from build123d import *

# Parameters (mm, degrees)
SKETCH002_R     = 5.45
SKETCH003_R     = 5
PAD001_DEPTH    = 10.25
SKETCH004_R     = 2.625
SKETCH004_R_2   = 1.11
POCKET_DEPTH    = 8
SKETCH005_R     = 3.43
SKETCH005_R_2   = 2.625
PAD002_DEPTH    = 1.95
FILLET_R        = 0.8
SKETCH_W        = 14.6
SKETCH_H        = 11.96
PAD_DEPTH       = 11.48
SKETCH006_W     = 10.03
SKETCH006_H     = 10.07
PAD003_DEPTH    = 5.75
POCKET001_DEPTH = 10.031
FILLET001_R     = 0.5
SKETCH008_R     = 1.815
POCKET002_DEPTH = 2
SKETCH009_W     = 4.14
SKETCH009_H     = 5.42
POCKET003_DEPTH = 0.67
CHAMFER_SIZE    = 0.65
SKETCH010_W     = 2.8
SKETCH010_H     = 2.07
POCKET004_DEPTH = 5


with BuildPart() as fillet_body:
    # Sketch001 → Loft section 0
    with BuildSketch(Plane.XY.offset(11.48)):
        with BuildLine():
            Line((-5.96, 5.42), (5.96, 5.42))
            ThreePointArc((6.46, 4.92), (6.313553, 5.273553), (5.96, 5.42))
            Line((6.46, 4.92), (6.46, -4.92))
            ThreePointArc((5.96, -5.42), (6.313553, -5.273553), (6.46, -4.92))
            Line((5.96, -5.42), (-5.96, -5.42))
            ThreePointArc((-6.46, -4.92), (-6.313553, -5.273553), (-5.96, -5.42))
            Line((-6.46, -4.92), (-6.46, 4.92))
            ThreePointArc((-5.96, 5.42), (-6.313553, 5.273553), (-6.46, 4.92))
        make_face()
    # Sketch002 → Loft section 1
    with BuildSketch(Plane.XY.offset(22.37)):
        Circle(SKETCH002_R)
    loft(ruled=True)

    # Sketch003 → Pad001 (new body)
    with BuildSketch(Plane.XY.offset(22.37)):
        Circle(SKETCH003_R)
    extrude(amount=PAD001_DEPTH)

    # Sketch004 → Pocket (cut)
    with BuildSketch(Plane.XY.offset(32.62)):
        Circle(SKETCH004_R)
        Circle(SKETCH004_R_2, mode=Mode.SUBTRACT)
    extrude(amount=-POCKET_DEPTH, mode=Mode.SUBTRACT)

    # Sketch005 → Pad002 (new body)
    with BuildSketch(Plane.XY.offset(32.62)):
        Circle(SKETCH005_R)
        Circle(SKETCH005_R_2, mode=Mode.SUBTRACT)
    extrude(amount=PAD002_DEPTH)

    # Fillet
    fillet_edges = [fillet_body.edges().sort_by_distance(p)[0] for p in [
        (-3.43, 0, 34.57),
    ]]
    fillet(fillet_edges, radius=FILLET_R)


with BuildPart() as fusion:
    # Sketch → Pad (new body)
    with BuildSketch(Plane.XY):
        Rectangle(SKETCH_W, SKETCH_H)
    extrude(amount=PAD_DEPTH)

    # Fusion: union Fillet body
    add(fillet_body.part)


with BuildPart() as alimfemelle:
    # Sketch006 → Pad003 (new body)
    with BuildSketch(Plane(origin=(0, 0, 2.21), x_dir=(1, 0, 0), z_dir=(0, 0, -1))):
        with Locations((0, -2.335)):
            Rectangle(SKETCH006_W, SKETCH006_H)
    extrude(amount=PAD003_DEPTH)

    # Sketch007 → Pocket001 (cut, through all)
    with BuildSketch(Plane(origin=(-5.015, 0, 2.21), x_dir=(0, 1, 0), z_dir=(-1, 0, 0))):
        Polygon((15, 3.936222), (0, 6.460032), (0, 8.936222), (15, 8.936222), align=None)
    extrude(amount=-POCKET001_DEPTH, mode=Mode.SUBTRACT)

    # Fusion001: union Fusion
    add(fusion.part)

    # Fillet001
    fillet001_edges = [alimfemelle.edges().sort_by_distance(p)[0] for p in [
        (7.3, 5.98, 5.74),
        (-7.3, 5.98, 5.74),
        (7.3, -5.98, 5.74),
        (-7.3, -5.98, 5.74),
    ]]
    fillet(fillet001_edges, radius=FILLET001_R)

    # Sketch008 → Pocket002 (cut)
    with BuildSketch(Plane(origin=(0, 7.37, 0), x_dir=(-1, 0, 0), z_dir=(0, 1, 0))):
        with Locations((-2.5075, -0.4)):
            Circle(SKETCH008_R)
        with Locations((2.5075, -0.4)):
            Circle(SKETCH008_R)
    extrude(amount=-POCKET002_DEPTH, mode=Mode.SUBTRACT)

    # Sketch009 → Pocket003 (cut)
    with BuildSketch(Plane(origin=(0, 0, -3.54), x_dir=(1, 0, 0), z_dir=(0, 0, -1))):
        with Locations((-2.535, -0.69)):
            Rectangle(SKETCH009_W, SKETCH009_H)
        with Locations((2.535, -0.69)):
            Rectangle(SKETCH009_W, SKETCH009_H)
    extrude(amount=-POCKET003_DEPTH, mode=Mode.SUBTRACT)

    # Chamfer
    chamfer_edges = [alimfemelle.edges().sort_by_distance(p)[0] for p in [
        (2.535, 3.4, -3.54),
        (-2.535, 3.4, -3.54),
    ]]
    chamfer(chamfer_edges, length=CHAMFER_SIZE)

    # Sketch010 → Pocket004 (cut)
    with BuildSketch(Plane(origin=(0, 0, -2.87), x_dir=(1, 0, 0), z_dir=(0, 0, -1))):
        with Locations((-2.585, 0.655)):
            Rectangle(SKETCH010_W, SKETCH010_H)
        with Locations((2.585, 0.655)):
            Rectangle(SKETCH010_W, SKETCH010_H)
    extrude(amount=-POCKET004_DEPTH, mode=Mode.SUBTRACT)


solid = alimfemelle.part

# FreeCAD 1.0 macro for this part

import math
import FreeCAD as App
import Part
import Sketcher

V = App.Vector
Q = App.Units.Quantity


def edges_at(feature, points):
    """Names of the edges that pass closest to the given points."""
    edges = feature.Shape.Edges
    near = lambda p: min(range(len(edges)), key=lambda i: edges[i].distToShape(Part.Vertex(*p))[0])
    return sorted({f"Edge{near(p) + 1}" for p in points})

doc = App.newDocument("Part")
params = doc.addObject("Spreadsheet::Sheet", "Params")
for row, (alias, value) in enumerate([
    ("sketch1_radius", "0.500001 mm"),
    ("sketch1_width", "11.92 mm"),
    ("sketch1_height", "9.84 mm"),
    ("sketch2_diameter", "10.9 mm"),
    ("sketch3_diameter", "10 mm"),
    ("pad1_length", "10.25 mm"),
    ("sketch4_diameter", "5.25 mm"),
    ("sketch4_diameter2", "2.22 mm"),
    ("pocket1_length", "8 mm"),
    ("sketch5_diameter", "6.86 mm"),
    ("sketch5_diameter2", "5.25 mm"),
    ("pad2_length", "1.95 mm"),
    ("fillet_radius", "0.8 mm"),
    ("sketch6_width", "14.6 mm"),
    ("sketch6_height", "11.96 mm"),
    ("pad3_length", "11.48 mm"),
    ("sketch7_width", "10.03 mm"),
    ("sketch7_height", "10.07 mm"),
    ("pad4_length", "5.75 mm"),
    ("sketch8_width", "15 mm"),
    ("sketch8_height", "5 mm"),
    ("fillet2_radius", "0.5 mm"),
    ("sketch9_diameter", "3.63 mm"),
    ("pocket3_length", "2 mm"),
    ("sketch10_width", "4.14 mm"),
    ("sketch10_height", "5.42 mm"),
    ("pocket4_length", "0.67 mm"),
    ("chamfer_size", "0.65 mm"),
    ("sketch11_width", "2.8 mm"),
    ("sketch11_height", "2.07 mm"),
    ("pocket5_length", "5 mm"),
], start=1):
    params.set(f"A{row}", alias)
    params.set(f"B{row}", "=" + value)
    params.setAlias(f"B{row}", alias)

body = doc.addObject("PartDesign::Body", "Body")

# Sketch on XY plane
sketch1 = body.newObject("Sketcher::SketchObject", "Sketch")
sketch1.AttachmentSupport = (doc.getObject("XY_Plane"), [""])
sketch1.MapMode = "FlatFace"
sketch1.AttachmentOffset = App.Placement(V(0, 0, 11.48), App.Rotation())
sketch1.addGeometry([
    Part.LineSegment(V(6, 5.4, 0), V(-6, 5.4, 0)),  # 0
    Part.ArcOfCircle(Part.Circle(V(-6, 4.9, 0), V(0, 0, 1), 0.5), math.radians(90), math.radians(180)),  # 1
    Part.LineSegment(V(-6.5, 4.9, 0), V(-6.5, -4.9, 0)),  # 2
    Part.ArcOfCircle(Part.Circle(V(-6, -4.9, 0), V(0, 0, 1), 0.5), math.radians(-180), math.radians(-90)),  # 3
    Part.LineSegment(V(-6, -5.4, 0), V(6, -5.4, 0)),  # 4
    Part.ArcOfCircle(Part.Circle(V(6, -4.9, 0), V(0, 0, 1), 0.5), math.radians(-90), math.radians(0)),  # 5
    Part.LineSegment(V(6.5, -4.9, 0), V(6.5, 4.9, 0)),  # 6
    Part.ArcOfCircle(Part.Circle(V(6, 4.9, 0), V(0, 0, 1), 0.5), math.radians(0), math.radians(90)),  # 7
], False)
sketch1.addConstraint([
    Sketcher.Constraint("Coincident", 0, 2, 1, 1),
    Sketcher.Constraint("Coincident", 1, 2, 2, 1),
    Sketcher.Constraint("Coincident", 2, 2, 3, 1),
    Sketcher.Constraint("Coincident", 3, 2, 4, 1),
    Sketcher.Constraint("Coincident", 4, 2, 5, 1),
    Sketcher.Constraint("Coincident", 5, 2, 6, 1),
    Sketcher.Constraint("Coincident", 6, 2, 7, 1),
    Sketcher.Constraint("Coincident", 7, 2, 0, 1),
    Sketcher.Constraint("Horizontal", 0),
    Sketcher.Constraint("Vertical", 2),
    Sketcher.Constraint("Horizontal", 4),
    Sketcher.Constraint("Vertical", 6),
    Sketcher.Constraint("Equal", 1, 3),
    Sketcher.Constraint("Equal", 3, 5),
    Sketcher.Constraint("Equal", 5, 7),
    Sketcher.Constraint("Symmetric", 1, 3, 5, 3, -1, 1),
    Sketcher.Constraint("Horizontal", 7, 3, 1, 2),
    Sketcher.Constraint("Horizontal", 5, 3, 2, 2),
    Sketcher.Constraint("Horizontal", 2, 2, 5, 2),
    Sketcher.Constraint("Horizontal", 1, 2, 6, 2),
    Sketcher.Constraint("Vertical", 3, 3, 0, 2),
    Sketcher.Constraint("Vertical", 0, 2, 3, 2),
    Sketcher.Constraint("Vertical", 7, 3, 4, 2),
    Sketcher.Constraint("Vertical", 4, 2, 7, 2),
    Sketcher.Constraint("Radius", 1, Q("0.500001 mm")),
    Sketcher.Constraint("DistanceX", 0, 2, 0, 1, Q("11.92 mm")),
    Sketcher.Constraint("DistanceY", 2, 2, 2, 1, Q("9.84 mm")),
])
sketch1.setExpression("Constraints[24]", "Params.sketch1_radius")
sketch1.setExpression("Constraints[25]", "Params.sketch1_width")
sketch1.setExpression("Constraints[26]", "Params.sketch1_height")

# Sketch on XY plane
sketch2 = body.newObject("Sketcher::SketchObject", "Sketch001")
sketch2.AttachmentSupport = (doc.getObject("XY_Plane"), [""])
sketch2.MapMode = "FlatFace"
sketch2.AttachmentOffset = App.Placement(V(0, 0, 22.37), App.Rotation())
sketch2.addGeometry(Part.Circle(V(0, 0, 0), V(0, 0, 1), 5), False)
sketch2.addConstraint([
    Sketcher.Constraint("Coincident", 0, 3, -1, 1),
    Sketcher.Constraint("Diameter", 0, Q("10.9 mm")),
])
sketch2.setExpression("Constraints[1]", "Params.sketch2_diameter")

additiveloft = body.newObject("PartDesign::AdditiveLoft", "AdditiveLoft")
additiveloft.Profile = sketch1
additiveloft.Sections = [sketch2]
additiveloft.Ruled = True

# Sketch on XY plane
sketch3 = body.newObject("Sketcher::SketchObject", "Sketch002")
sketch3.AttachmentSupport = (doc.getObject("XY_Plane"), [""])
sketch3.MapMode = "FlatFace"
sketch3.AttachmentOffset = App.Placement(V(0, 0, 22.37), App.Rotation())
sketch3.addGeometry(Part.Circle(V(0, 0, 0), V(0, 0, 1), 5), False)
sketch3.addConstraint([
    Sketcher.Constraint("Coincident", 0, 3, -1, 1),
    Sketcher.Constraint("Diameter", 0, Q("10 mm")),
])
sketch3.setExpression("Constraints[1]", "Params.sketch3_diameter")
pad1 = body.newObject("PartDesign::Pad", "Pad")
pad1.Profile = sketch3
pad1.setExpression("Length", "Params.pad1_length")

# Sketch on XY plane
sketch4 = body.newObject("Sketcher::SketchObject", "Sketch003")
sketch4.AttachmentSupport = (doc.getObject("XY_Plane"), [""])
sketch4.MapMode = "FlatFace"
sketch4.AttachmentOffset = App.Placement(V(0, 0, 32.62), App.Rotation())
sketch4.addGeometry([
    Part.Circle(V(0, 0, 0), V(0, 0, 1), 2.6),
    Part.Circle(V(0, 0, 0), V(0, 0, 1), 1.1),
], False)
sketch4.addConstraint([
    Sketcher.Constraint("Coincident", 0, 3, -1, 1),
    Sketcher.Constraint("Coincident", 1, 3, -1, 1),
    Sketcher.Constraint("Diameter", 0, Q("5.25 mm")),
    Sketcher.Constraint("Diameter", 1, Q("2.22 mm")),
])
sketch4.setExpression("Constraints[2]", "Params.sketch4_diameter")
sketch4.setExpression("Constraints[3]", "Params.sketch4_diameter2")
pocket1 = body.newObject("PartDesign::Pocket", "Pocket")
pocket1.Profile = sketch4
pocket1.setExpression("Length", "Params.pocket1_length")

# Sketch on XY plane
sketch5 = body.newObject("Sketcher::SketchObject", "Sketch004")
sketch5.AttachmentSupport = (doc.getObject("XY_Plane"), [""])
sketch5.MapMode = "FlatFace"
sketch5.AttachmentOffset = App.Placement(V(0, 0, 32.62), App.Rotation())
sketch5.addGeometry([
    Part.Circle(V(0, 0, 0), V(0, 0, 1), 3.4),
    Part.Circle(V(0, 0, 0), V(0, 0, 1), 2.6),
], False)
sketch5.addConstraint([
    Sketcher.Constraint("Coincident", 0, 3, -1, 1),
    Sketcher.Constraint("Coincident", 1, 3, -1, 1),
    Sketcher.Constraint("Diameter", 0, Q("6.86 mm")),
    Sketcher.Constraint("Diameter", 1, Q("5.25 mm")),
])
sketch5.setExpression("Constraints[2]", "Params.sketch5_diameter")
sketch5.setExpression("Constraints[3]", "Params.sketch5_diameter2")
pad2 = body.newObject("PartDesign::Pad", "Pad001")
pad2.Profile = sketch5
pad2.setExpression("Length", "Params.pad2_length")
doc.recompute()

fillet = body.newObject("PartDesign::Fillet", "Fillet")
fillet.Base = (pad2, edges_at(pad2, [(-3.43, 0, 34.57)]))
fillet.setExpression("Radius", "Params.fillet_radius")
body2 = doc.addObject("PartDesign::Body", "Body001")

# Sketch on XY plane
sketch6 = body2.newObject("Sketcher::SketchObject", "Sketch005")
sketch6.AttachmentSupport = (doc.getObject("XY_Plane001"), [""])
sketch6.MapMode = "FlatFace"
sketch6.addGeometry([
    Part.LineSegment(V(-7, 6, 0), V(-7, -6, 0)),
    Part.LineSegment(V(-7, -6, 0), V(7, -6, 0)),
    Part.LineSegment(V(7, -6, 0), V(7, 6, 0)),
    Part.LineSegment(V(7, 6, 0), V(-7, 6, 0)),
], False)
sketch6.addConstraint([
    Sketcher.Constraint("Coincident", 0, 2, 1, 1),
    Sketcher.Constraint("Coincident", 1, 2, 2, 1),
    Sketcher.Constraint("Coincident", 2, 2, 3, 1),
    Sketcher.Constraint("Coincident", 3, 2, 0, 1),
    Sketcher.Constraint("Vertical", 0),
    Sketcher.Constraint("Horizontal", 1),
    Sketcher.Constraint("Vertical", 2),
    Sketcher.Constraint("Horizontal", 3),
    Sketcher.Constraint("Symmetric", 0, 2, 2, 2, -1, 1),
    Sketcher.Constraint("DistanceX", 1, 1, 1, 2, Q("14.6 mm")),
    Sketcher.Constraint("DistanceY", 0, 2, 0, 1, Q("11.96 mm")),
])
sketch6.setExpression("Constraints[9]", "Params.sketch6_width")
sketch6.setExpression("Constraints[10]", "Params.sketch6_height")
pad3 = body2.newObject("PartDesign::Pad", "Pad002")
pad3.Profile = sketch6
pad3.setExpression("Length", "Params.pad3_length")
doc.recompute()

boolean = body2.newObject("PartDesign::Boolean", "Boolean")
boolean.Type = "Fuse"
boolean.addObjects([body])
body3 = doc.addObject("PartDesign::Body", "Body002")

# Sketch on XY plane
sketch7 = body3.newObject("Sketcher::SketchObject", "Sketch006")
sketch7.AttachmentSupport = (doc.getObject("XY_Plane002"), [""])
sketch7.MapMode = "FlatFace"
sketch7.AttachmentOffset = App.Placement(V(0, 0, 2.21), App.Rotation())
sketch7.addGeometry([
    Part.LineSegment(V(-5, -3, 0), V(-5, 7, 0)),
    Part.LineSegment(V(-5, 7, 0), V(5, 7, 0)),
    Part.LineSegment(V(5, 7, 0), V(5, -3, 0)),
    Part.LineSegment(V(5, -3, 0), V(-5, -3, 0)),
], False)
sketch7.addConstraint([
    Sketcher.Constraint("Coincident", 0, 2, 1, 1),
    Sketcher.Constraint("Coincident", 1, 2, 2, 1),
    Sketcher.Constraint("Coincident", 2, 2, 3, 1),
    Sketcher.Constraint("Coincident", 3, 2, 0, 1),
    Sketcher.Constraint("Vertical", 0),
    Sketcher.Constraint("Horizontal", 1),
    Sketcher.Constraint("Vertical", 2),
    Sketcher.Constraint("Horizontal", 3),
    Sketcher.Constraint("DistanceX", 1, 1, 1, 2, Q("10.03 mm")),
    Sketcher.Constraint("DistanceY", 0, 1, 0, 2, Q("10.07 mm")),
    Sketcher.Constraint("DistanceY", 2, 2, -1, 1, Q("2.7 mm")),
    Sketcher.Constraint("DistanceX", 0, 2, -1, 1, Q("5.015 mm")),
])
sketch7.setExpression("Constraints[8]", "Params.sketch7_width")
sketch7.setExpression("Constraints[9]", "Params.sketch7_height")
pad4 = body3.newObject("PartDesign::Pad", "Pad003")
pad4.Profile = sketch7
pad4.setExpression("Length", "Params.pad4_length")
pad4.Reversed = True

# Sketch on YZ plane
sketch8 = body3.newObject("Sketcher::SketchObject", "Sketch007")
sketch8.AttachmentSupport = (doc.getObject("YZ_Plane002"), [""])
sketch8.MapMode = "FlatFace"
sketch8.AttachmentOffset = App.Placement(V(0, 0, -5.015), App.Rotation())
sketch8.addGeometry([
    Part.LineSegment(V(0, -4.3, 0), V(15, -1.7, 0)),
    Part.LineSegment(V(15, -1.7, 0), V(15, -6.7, 0)),
    Part.LineSegment(V(15, -6.7, 0), V(0, -6.7, 0)),
    Part.LineSegment(V(0, -6.7, 0), V(0, -4.3, 0)),
], False)
sketch8.addConstraint([
    Sketcher.Constraint("Coincident", 0, 2, 1, 1),
    Sketcher.Constraint("Coincident", 1, 2, 2, 1),
    Sketcher.Constraint("Coincident", 2, 2, 3, 1),
    Sketcher.Constraint("Coincident", 3, 2, 0, 1),
    Sketcher.Constraint("Vertical", 1),
    Sketcher.Constraint("Horizontal", 2),
    Sketcher.Constraint("Vertical", 3),
    Sketcher.Constraint("PointOnObject", 2, 2, -2),
    Sketcher.Constraint("DistanceX", 2, 2, 2, 1, Q("15 mm")),
    Sketcher.Constraint("DistanceY", 1, 2, 1, 1, Q("5 mm")),
    Sketcher.Constraint("DistanceY", 3, 1, 3, 2, Q("2.47619 mm")),
    Sketcher.Constraint("DistanceY", 0, 2, -1, 1, Q("1.726222 mm")),
])
sketch8.setExpression("Constraints[8]", "Params.sketch8_width")
sketch8.setExpression("Constraints[9]", "Params.sketch8_height")
pocket2 = body3.newObject("PartDesign::Pocket", "Pocket001")
pocket2.Profile = sketch8
pocket2.Type = "ThroughAll"
pocket2.Reversed = True
doc.recompute()

boolean2 = body3.newObject("PartDesign::Boolean", "Boolean001")
boolean2.Type = "Fuse"
boolean2.addObjects([body2])
doc.recompute()

fillet2 = body3.newObject("PartDesign::Fillet", "Fillet001")
fillet2.Base = (boolean2, edges_at(boolean2, [
    (7.3, 5.98, 5.74),
    (-7.3, 5.98, 5.74),
    (7.3, -5.98, 5.74),
    (-7.3, -5.98, 5.74),
]))
fillet2.setExpression("Radius", "Params.fillet2_radius")

# Sketch on XZ plane
sketch9 = body3.newObject("Sketcher::SketchObject", "Sketch008")
sketch9.AttachmentSupport = (doc.getObject("XZ_Plane002"), [""])
sketch9.MapMode = "FlatFace"
sketch9.AttachmentOffset = App.Placement(V(0, 0, -7.37), App.Rotation())
sketch9.addGeometry([
    Part.Circle(V(2.5, -0.4, 0), V(0, 0, 1), 1.8),
    Part.Circle(V(-2.5, -0.4, 0), V(0, 0, 1), 1.8),
], False)
sketch9.addConstraint([
    Sketcher.Constraint("Equal", 0, 1),
    Sketcher.Constraint("Symmetric", 0, 3, 1, 3, -2),
    Sketcher.Constraint("Diameter", 0, Q("3.63 mm")),
    Sketcher.Constraint("DistanceY", 0, 3, -1, 1, Q("0.4 mm")),
    Sketcher.Constraint("DistanceX", 1, 3, 0, 3, Q("5.015 mm")),
])
sketch9.setExpression("Constraints[2]", "Params.sketch9_diameter")
pocket3 = body3.newObject("PartDesign::Pocket", "Pocket002")
pocket3.Profile = sketch9
pocket3.setExpression("Length", "Params.pocket3_length")
pocket3.Reversed = True

# Sketch on XY plane
sketch10 = body3.newObject("Sketcher::SketchObject", "Sketch009")
sketch10.AttachmentSupport = (doc.getObject("XY_Plane002"), [""])
sketch10.MapMode = "FlatFace"
sketch10.AttachmentOffset = App.Placement(V(0, 0, -3.54), App.Rotation())
sketch10.addGeometry([
    Part.LineSegment(V(-4.6, -2, 0), V(-4.6, 3.4, 0)),  # 0
    Part.LineSegment(V(-4.6, 3.4, 0), V(-0.5, 3.4, 0)),  # 1
    Part.LineSegment(V(-0.5, 3.4, 0), V(-0.5, -2, 0)),  # 2
    Part.LineSegment(V(-0.5, -2, 0), V(-4.6, -2, 0)),  # 3
    Part.LineSegment(V(0.5, -2, 0), V(0.5, 3.4, 0)),  # 4
    Part.LineSegment(V(0.5, 3.4, 0), V(4.6, 3.4, 0)),  # 5
    Part.LineSegment(V(4.6, 3.4, 0), V(4.6, -2, 0)),  # 6
    Part.LineSegment(V(4.6, -2, 0), V(0.5, -2, 0)),  # 7
], False)
sketch10.addConstraint([
    Sketcher.Constraint("Coincident", 0, 2, 1, 1),
    Sketcher.Constraint("Coincident", 1, 2, 2, 1),
    Sketcher.Constraint("Coincident", 2, 2, 3, 1),
    Sketcher.Constraint("Coincident", 3, 2, 0, 1),
    Sketcher.Constraint("Coincident", 4, 2, 5, 1),
    Sketcher.Constraint("Coincident", 5, 2, 6, 1),
    Sketcher.Constraint("Coincident", 6, 2, 7, 1),
    Sketcher.Constraint("Coincident", 7, 2, 4, 1),
    Sketcher.Constraint("Vertical", 0),
    Sketcher.Constraint("Horizontal", 1),
    Sketcher.Constraint("Vertical", 2),
    Sketcher.Constraint("Horizontal", 3),
    Sketcher.Constraint("Vertical", 4),
    Sketcher.Constraint("Horizontal", 5),
    Sketcher.Constraint("Vertical", 6),
    Sketcher.Constraint("Horizontal", 7),
    Sketcher.Constraint("Symmetric", 1, 2, 4, 2, -2),
    Sketcher.Constraint("Symmetric", 3, 2, 6, 2, -2),
    Sketcher.Constraint("DistanceX", 1, 1, 1, 2, Q("4.14 mm")),
    Sketcher.Constraint("DistanceY", 0, 1, 0, 2, Q("5.42 mm")),
    Sketcher.Constraint("DistanceY", -1, 1, 0, 2, Q("3.4 mm")),
    Sketcher.Constraint("DistanceX", 1, 2, 4, 2, Q("0.93 mm")),
])
sketch10.setExpression("Constraints[18]", "Params.sketch10_width")
sketch10.setExpression("Constraints[19]", "Params.sketch10_height")
pocket4 = body3.newObject("PartDesign::Pocket", "Pocket003")
pocket4.Profile = sketch10
pocket4.setExpression("Length", "Params.pocket4_length")
pocket4.Reversed = True
doc.recompute()

chamfer = body3.newObject("PartDesign::Chamfer", "Chamfer")
chamfer.Base = (pocket4, edges_at(pocket4, [(2.535, 3.4, -3.54), (-2.535, 3.4, -3.54)]))
chamfer.setExpression("Size", "Params.chamfer_size")

# Sketch on XY plane
sketch11 = body3.newObject("Sketcher::SketchObject", "Sketch010")
sketch11.AttachmentSupport = (doc.getObject("XY_Plane002"), [""])
sketch11.MapMode = "FlatFace"
sketch11.AttachmentOffset = App.Placement(V(0, 0, -2.87), App.Rotation())
sketch11.addGeometry([
    Part.LineSegment(V(-4, -1.7, 0), V(-4, 0.4, 0)),  # 0
    Part.LineSegment(V(-4, 0.4, 0), V(-1.2, 0.4, 0)),  # 1
    Part.LineSegment(V(-1.2, 0.4, 0), V(-1.2, -1.7, 0)),  # 2
    Part.LineSegment(V(-1.2, -1.7, 0), V(-4, -1.7, 0)),  # 3
    Part.LineSegment(V(1.2, -1.7, 0), V(1.2, 0.4, 0)),  # 4
    Part.LineSegment(V(1.2, 0.4, 0), V(4, 0.4, 0)),  # 5
    Part.LineSegment(V(4, 0.4, 0), V(4, -1.7, 0)),  # 6
    Part.LineSegment(V(4, -1.7, 0), V(1.2, -1.7, 0)),  # 7
], False)
sketch11.addConstraint([
    Sketcher.Constraint("Coincident", 0, 2, 1, 1),
    Sketcher.Constraint("Coincident", 1, 2, 2, 1),
    Sketcher.Constraint("Coincident", 2, 2, 3, 1),
    Sketcher.Constraint("Coincident", 3, 2, 0, 1),
    Sketcher.Constraint("Coincident", 4, 2, 5, 1),
    Sketcher.Constraint("Coincident", 5, 2, 6, 1),
    Sketcher.Constraint("Coincident", 6, 2, 7, 1),
    Sketcher.Constraint("Coincident", 7, 2, 4, 1),
    Sketcher.Constraint("Vertical", 0),
    Sketcher.Constraint("Horizontal", 1),
    Sketcher.Constraint("Vertical", 2),
    Sketcher.Constraint("Horizontal", 3),
    Sketcher.Constraint("Vertical", 4),
    Sketcher.Constraint("Horizontal", 5),
    Sketcher.Constraint("Vertical", 6),
    Sketcher.Constraint("Horizontal", 7),
    Sketcher.Constraint("Symmetric", 1, 2, 4, 2, -2),
    Sketcher.Constraint("Symmetric", 3, 2, 6, 2, -2),
    Sketcher.Constraint("DistanceX", 1, 1, 1, 2, Q("2.8 mm")),
    Sketcher.Constraint("DistanceY", 0, 1, 0, 2, Q("2.07 mm")),
    Sketcher.Constraint("DistanceY", -1, 1, 0, 2, Q("0.38 mm")),
    Sketcher.Constraint("DistanceX", 1, 2, 4, 2, Q("2.37 mm")),
])
sketch11.setExpression("Constraints[18]", "Params.sketch11_width")
sketch11.setExpression("Constraints[19]", "Params.sketch11_height")
pocket5 = body3.newObject("PartDesign::Pocket", "Pocket004")
pocket5.Profile = sketch11
pocket5.setExpression("Length", "Params.pocket5_length")
pocket5.Reversed = True

doc.recompute()
